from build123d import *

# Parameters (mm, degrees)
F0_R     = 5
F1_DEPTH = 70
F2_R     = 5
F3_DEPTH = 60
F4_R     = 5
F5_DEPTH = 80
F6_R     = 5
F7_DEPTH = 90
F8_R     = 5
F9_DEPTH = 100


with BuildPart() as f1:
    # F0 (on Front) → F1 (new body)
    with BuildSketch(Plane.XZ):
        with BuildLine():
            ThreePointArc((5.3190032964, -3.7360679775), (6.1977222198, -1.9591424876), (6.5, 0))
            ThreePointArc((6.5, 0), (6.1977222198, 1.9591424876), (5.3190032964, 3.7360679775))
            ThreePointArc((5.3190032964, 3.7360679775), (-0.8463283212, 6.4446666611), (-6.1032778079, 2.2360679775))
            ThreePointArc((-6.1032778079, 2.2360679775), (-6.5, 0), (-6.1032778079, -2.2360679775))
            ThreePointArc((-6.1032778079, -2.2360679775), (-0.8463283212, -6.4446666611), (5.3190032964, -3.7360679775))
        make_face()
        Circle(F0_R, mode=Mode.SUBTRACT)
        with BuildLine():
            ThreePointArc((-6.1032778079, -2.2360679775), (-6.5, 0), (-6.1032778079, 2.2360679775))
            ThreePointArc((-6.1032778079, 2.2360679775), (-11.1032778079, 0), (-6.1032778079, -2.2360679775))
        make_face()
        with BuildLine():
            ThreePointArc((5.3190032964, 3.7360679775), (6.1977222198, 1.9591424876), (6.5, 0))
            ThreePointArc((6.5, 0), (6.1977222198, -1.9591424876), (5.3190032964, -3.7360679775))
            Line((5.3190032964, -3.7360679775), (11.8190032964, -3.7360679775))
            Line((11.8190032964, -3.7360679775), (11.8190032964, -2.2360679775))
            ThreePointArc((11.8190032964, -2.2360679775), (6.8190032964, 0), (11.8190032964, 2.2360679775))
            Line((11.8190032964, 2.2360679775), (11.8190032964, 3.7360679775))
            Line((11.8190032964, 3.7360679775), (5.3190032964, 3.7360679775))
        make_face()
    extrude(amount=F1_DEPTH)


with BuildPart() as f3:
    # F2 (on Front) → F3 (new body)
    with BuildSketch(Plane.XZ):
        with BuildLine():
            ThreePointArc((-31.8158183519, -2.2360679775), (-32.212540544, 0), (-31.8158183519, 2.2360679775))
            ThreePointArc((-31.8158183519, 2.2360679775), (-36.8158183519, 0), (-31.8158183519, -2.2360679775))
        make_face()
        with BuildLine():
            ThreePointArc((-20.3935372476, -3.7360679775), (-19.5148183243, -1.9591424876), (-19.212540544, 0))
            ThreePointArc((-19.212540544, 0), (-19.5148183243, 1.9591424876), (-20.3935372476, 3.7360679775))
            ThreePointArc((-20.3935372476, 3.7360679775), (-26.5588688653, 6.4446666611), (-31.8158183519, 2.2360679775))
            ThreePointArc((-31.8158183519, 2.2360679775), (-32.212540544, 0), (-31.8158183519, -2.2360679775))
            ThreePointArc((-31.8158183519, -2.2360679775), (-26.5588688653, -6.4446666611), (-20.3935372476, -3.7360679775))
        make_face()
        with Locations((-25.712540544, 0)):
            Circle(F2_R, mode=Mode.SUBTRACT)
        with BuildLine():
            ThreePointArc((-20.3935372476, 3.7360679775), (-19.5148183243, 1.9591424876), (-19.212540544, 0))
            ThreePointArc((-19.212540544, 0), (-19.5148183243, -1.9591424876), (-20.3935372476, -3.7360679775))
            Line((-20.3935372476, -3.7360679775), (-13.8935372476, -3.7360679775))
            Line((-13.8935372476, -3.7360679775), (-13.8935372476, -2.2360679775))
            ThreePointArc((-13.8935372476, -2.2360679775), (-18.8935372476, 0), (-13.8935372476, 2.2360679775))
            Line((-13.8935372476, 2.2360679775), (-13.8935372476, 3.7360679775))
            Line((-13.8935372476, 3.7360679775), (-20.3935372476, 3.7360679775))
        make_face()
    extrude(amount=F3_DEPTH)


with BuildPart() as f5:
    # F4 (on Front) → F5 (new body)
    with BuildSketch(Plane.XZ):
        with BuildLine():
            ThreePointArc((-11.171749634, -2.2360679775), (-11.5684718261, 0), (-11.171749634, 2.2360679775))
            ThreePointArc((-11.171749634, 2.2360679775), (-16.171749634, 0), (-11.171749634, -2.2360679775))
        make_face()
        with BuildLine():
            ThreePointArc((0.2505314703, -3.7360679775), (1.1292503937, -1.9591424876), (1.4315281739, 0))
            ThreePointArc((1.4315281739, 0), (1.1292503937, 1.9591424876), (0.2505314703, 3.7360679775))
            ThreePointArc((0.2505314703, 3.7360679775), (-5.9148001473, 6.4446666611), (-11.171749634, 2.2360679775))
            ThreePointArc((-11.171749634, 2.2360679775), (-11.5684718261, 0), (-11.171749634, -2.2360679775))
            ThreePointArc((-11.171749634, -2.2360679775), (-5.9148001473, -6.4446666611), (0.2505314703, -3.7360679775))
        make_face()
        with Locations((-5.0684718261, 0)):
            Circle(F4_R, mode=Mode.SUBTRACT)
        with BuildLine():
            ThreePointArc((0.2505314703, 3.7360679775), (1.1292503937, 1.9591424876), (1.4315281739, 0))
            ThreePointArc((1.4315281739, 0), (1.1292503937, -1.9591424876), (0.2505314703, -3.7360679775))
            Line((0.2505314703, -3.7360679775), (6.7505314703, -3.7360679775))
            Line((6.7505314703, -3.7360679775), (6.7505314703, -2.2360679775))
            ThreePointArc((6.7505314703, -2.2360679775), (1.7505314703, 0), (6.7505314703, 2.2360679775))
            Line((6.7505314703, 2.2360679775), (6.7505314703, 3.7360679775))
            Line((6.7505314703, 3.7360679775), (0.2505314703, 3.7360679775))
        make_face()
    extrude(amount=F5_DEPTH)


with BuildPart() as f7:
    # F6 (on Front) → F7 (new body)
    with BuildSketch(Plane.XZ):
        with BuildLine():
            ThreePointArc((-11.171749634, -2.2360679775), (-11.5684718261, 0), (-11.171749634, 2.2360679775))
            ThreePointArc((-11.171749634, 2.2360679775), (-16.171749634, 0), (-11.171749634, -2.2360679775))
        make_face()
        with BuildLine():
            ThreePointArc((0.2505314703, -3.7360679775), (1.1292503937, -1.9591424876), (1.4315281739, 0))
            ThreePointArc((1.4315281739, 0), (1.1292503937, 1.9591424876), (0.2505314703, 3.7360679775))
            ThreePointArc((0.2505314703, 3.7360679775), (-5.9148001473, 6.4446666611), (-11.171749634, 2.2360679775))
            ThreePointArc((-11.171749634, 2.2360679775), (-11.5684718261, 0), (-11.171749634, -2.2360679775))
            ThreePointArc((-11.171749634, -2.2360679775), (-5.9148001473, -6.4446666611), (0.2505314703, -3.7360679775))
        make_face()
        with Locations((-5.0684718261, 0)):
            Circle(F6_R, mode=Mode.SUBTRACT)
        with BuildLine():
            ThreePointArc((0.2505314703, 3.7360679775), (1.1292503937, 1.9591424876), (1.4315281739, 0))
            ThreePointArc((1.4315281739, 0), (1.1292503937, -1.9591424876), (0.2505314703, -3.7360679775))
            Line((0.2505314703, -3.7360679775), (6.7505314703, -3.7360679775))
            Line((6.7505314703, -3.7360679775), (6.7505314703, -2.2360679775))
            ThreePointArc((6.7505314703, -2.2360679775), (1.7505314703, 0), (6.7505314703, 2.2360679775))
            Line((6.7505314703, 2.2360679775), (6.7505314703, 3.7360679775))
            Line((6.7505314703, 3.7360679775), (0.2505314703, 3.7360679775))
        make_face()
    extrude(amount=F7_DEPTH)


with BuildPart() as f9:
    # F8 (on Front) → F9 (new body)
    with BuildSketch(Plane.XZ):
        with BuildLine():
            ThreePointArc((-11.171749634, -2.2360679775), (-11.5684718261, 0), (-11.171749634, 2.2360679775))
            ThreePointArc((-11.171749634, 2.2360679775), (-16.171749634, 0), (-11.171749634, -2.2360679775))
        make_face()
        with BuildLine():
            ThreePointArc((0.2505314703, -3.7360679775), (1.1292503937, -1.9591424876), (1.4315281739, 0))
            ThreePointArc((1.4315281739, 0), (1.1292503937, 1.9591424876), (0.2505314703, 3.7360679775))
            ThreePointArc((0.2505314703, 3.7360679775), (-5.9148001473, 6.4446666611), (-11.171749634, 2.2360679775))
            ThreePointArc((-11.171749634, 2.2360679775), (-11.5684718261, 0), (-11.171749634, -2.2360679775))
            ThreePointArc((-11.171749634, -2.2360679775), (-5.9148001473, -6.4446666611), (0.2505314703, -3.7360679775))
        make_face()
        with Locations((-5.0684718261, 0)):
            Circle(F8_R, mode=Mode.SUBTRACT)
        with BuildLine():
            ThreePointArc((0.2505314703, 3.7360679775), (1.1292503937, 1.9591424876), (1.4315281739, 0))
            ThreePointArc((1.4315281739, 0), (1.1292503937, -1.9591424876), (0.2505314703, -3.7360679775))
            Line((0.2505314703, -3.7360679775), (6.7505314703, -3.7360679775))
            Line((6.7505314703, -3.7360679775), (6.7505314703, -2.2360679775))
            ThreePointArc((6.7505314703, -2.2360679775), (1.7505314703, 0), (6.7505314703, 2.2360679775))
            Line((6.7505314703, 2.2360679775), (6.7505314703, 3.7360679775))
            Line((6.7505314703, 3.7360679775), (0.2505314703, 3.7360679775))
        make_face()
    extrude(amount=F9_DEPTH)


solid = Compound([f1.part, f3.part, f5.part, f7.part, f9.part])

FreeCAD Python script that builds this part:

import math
import FreeCAD as App
import Part
import Sketcher
from FreeCAD import Vector
Q = App.Units.Quantity

doc = App.newDocument("Part")
params = doc.addObject("Spreadsheet::Sheet", "Params")
for row, (alias, value) in enumerate([
    ("sketch1_diameter", "10 mm"),
    ("sketch1_radius", "3 mm"),
    ("sketch1_radius2", "6.5 mm"),
    ("sketch1_width", "6.5 mm"),
    ("sketch1_height", "1.5 mm"),
    ("pad1_length", "70 mm"),
    ("sketch2_diameter", "10 mm"),
    ("sketch2_radius", "3 mm"),
    ("sketch2_radius2", "6.5 mm"),
    ("sketch2_width", "6.5 mm"),
    ("sketch2_height", "1.5 mm"),
    ("pad2_length", "60 mm"),
    ("sketch3_diameter", "10 mm"),
    ("sketch3_radius", "3 mm"),
    ("sketch3_radius2", "6.5 mm"),
    ("sketch3_width", "6.5 mm"),
    ("sketch3_height", "1.5 mm"),
    ("pad3_length", "80 mm"),
    ("sketch4_diameter", "10 mm"),
    ("sketch4_radius", "3 mm"),
    ("sketch4_radius2", "6.5 mm"),
    ("sketch4_width", "6.5 mm"),
    ("sketch4_height", "1.5 mm"),
    ("pad4_length", "90 mm"),
    ("sketch5_diameter", "10 mm"),
    ("sketch5_radius", "3 mm"),
    ("sketch5_radius2", "6.5 mm"),
    ("sketch5_width", "6.5 mm"),
    ("sketch5_height", "1.5 mm"),
    ("pad5_length", "100 mm"),
], start=1):
    params.set(f"A{row}", alias)
    params.set(f"B{row}", "=" + value)
    params.setAlias(f"B{row}", alias)

body = doc.addObject("PartDesign::Body", "Body")

sketch1 = body.newObject("Sketcher::SketchObject", "Sketch")
sketch1.AttachmentSupport = (doc.getObject("XZ_Plane"), [""])
sketch1.MapMode = "FlatFace"
sketch1.addGeometry(Part.ArcOfCircle(Part.Circle(Vector(0, 0, 0), Vector(0, 0, 1), 6.5), math.radians(35), math.radians(160)), False)
sketch1.addGeometry(Part.ArcOfCircle(Part.Circle(Vector(-8.1, 0, 0), Vector(0, 0, 1), 3), math.radians(48), math.radians(312)), False)
sketch1.addGeometry(Part.ArcOfCircle(Part.Circle(Vector(0, 0, 0), Vector(0, 0, 1), 6.5), math.radians(-160), math.radians(-35)), False)
sketch1.addGeometry(Part.LineSegment(Vector(5.3, -3.7, 0), Vector(11.8, -3.7, 0)), False)
sketch1.addGeometry(Part.LineSegment(Vector(11.8, -3.7, 0), Vector(11.8, -2.2, 0)), False)
sketch1.addGeometry(Part.ArcOfCircle(Part.Circle(Vector(9.8, 0, 0), Vector(0, 0, 1), 3), math.radians(48), math.radians(312)), False)
sketch1.addGeometry(Part.LineSegment(Vector(11.8, 2.2, 0), Vector(11.8, 3.7, 0)), False)
sketch1.addGeometry(Part.LineSegment(Vector(11.8, 3.7, 0), Vector(5.3, 3.7, 0)), False)
sketch1.addGeometry(Part.Circle(Vector(0, 0, 0), Vector(0, 0, 1), 5), False)
sketch1.addConstraint(Sketcher.Constraint("Coincident", 0, 2, 1, 1))
sketch1.addConstraint(Sketcher.Constraint("Coincident", 1, 2, 2, 1))
sketch1.addConstraint(Sketcher.Constraint("Coincident", 2, 2, 3, 1))
sketch1.addConstraint(Sketcher.Constraint("Coincident", 3, 2, 4, 1))
sketch1.addConstraint(Sketcher.Constraint("Coincident", 4, 2, 5, 2))
sketch1.addConstraint(Sketcher.Constraint("Coincident", 5, 1, 6, 1))
sketch1.addConstraint(Sketcher.Constraint("Coincident", 6, 2, 7, 1))
sketch1.addConstraint(Sketcher.Constraint("Coincident", 7, 2, 0, 1))
sketch1.addConstraint(Sketcher.Constraint("Horizontal", 3))
sketch1.addConstraint(Sketcher.Constraint("Vertical", 4))
sketch1.addConstraint(Sketcher.Constraint("Vertical", 6))
sketch1.addConstraint(Sketcher.Constraint("Horizontal", 7))
sketch1.addConstraint(Sketcher.Constraint("Coincident", 0, 3, -1, 1))
sketch1.addConstraint(Sketcher.Constraint("Coincident", 2, 3, -1, 1))
sketch1.addConstraint(Sketcher.Constraint("Coincident", 8, 3, -1, 1))
sketch1.addConstraint(Sketcher.Constraint("Equal", 0, 2))
sketch1.addConstraint(Sketcher.Constraint("Equal", 1, 5))
sketch1.addConstraint(Sketcher.Constraint("Symmetric", 4, 2, 5, 1, -1))
sketch1.addConstraint(Sketcher.Constraint("PointOnObject", 1, 3, -1))
sketch1.addConstraint(Sketcher.Constraint("Horizontal", 1, 2, 4, 2))
sketch1.addConstraint(Sketcher.Constraint("Vertical", 2, 2, 7, 2))
sketch1.addConstraint(Sketcher.Constraint("Diameter", 8, Q("10 mm")))
sketch1.addConstraint(Sketcher.Constraint("Radius", 1, Q("3 mm")))
sketch1.addConstraint(Sketcher.Constraint("Radius", 0, Q("6.5 mm")))
sketch1.addConstraint(Sketcher.Constraint("DistanceX", 3, 1, 3, 2, Q("6.5 mm")))
sketch1.addConstraint(Sketcher.Constraint("DistanceY", 4, 1, 4, 2, Q("1.5 mm")))
sketch1.addConstraint(Sketcher.Constraint("DistanceX", 1, 3, 0, 2, Q("2 mm")))
sketch1.setExpression("Constraints[21]", "Params.sketch1_diameter")
sketch1.setExpression("Constraints[22]", "Params.sketch1_radius")
sketch1.setExpression("Constraints[23]", "Params.sketch1_radius2")
sketch1.setExpression("Constraints[24]", "Params.sketch1_width")
sketch1.setExpression("Constraints[25]", "Params.sketch1_height")
pad1 = body.newObject("PartDesign::Pad", "Pad")
pad1.Profile = sketch1
pad1.setExpression("Length", "Params.pad1_length")
body2 = doc.addObject("PartDesign::Body", "Body001")

sketch2 = body2.newObject("Sketcher::SketchObject", "Sketch001")
sketch2.AttachmentSupport = (doc.getObject("XZ_Plane001"), [""])
sketch2.MapMode = "FlatFace"
sketch2.addGeometry(Part.ArcOfCircle(Part.Circle(Vector(-33.8, 0, 0), Vector(0, 0, 1), 3), math.radians(48), math.radians(312)), False)
sketch2.addGeometry(Part.ArcOfCircle(Part.Circle(Vector(-25.7, 0, 0), Vector(0, 0, 1), 6.5), math.radians(-160), math.radians(-35)), False)
sketch2.addGeometry(Part.LineSegment(Vector(-20.4, -3.7, 0), Vector(-13.9, -3.7, 0)), False)
sketch2.addGeometry(Part.LineSegment(Vector(-13.9, -3.7, 0), Vector(-13.9, -2.2, 0)), False)
sketch2.addGeometry(Part.ArcOfCircle(Part.Circle(Vector(-15.9, 0, 0), Vector(0, 0, 1), 3), math.radians(48), math.radians(312)), False)
sketch2.addGeometry(Part.LineSegment(Vector(-13.9, 2.2, 0), Vector(-13.9, 3.7, 0)), False)
sketch2.addGeometry(Part.LineSegment(Vector(-13.9, 3.7, 0), Vector(-20.4, 3.7, 0)), False)
sketch2.addGeometry(Part.ArcOfCircle(Part.Circle(Vector(-25.7, 0, 0), Vector(0, 0, 1), 6.5), math.radians(35), math.radians(160)), False)
sketch2.addGeometry(Part.Circle(Vector(-25.7, 0, 0), Vector(0, 0, 1), 5), False)
sketch2.addConstraint(Sketcher.Constraint("Coincident", 0, 2, 1, 1))
sketch2.addConstraint(Sketcher.Constraint("Coincident", 1, 2, 2, 1))
sketch2.addConstraint(Sketcher.Constraint("Coincident", 2, 2, 3, 1))
sketch2.addConstraint(Sketcher.Constraint("Coincident", 3, 2, 4, 2))
sketch2.addConstraint(Sketcher.Constraint("Coincident", 4, 1, 5, 1))
sketch2.addConstraint(Sketcher.Constraint("Coincident", 5, 2, 6, 1))
sketch2.addConstraint(Sketcher.Constraint("Coincident", 6, 2, 7, 1))
sketch2.addConstraint(Sketcher.Constraint("Coincident", 7, 2, 0, 1))
sketch2.addConstraint(Sketcher.Constraint("Horizontal", 2))
sketch2.addConstraint(Sketcher.Constraint("Vertical", 3))
sketch2.addConstraint(Sketcher.Constraint("Vertical", 5))
sketch2.addConstraint(Sketcher.Constraint("Horizontal", 6))
sketch2.addConstraint(Sketcher.Constraint("Coincident", 7, 3, 1, 3))
sketch2.addConstraint(Sketcher.Constraint("Coincident", 8, 3, 1, 3))
sketch2.addConstraint(Sketcher.Constraint("Equal", 0, 4))
sketch2.addConstraint(Sketcher.Constraint("Equal", 1, 7))
sketch2.addConstraint(Sketcher.Constraint("Symmetric", 3, 2, 4, 1, -1))
sketch2.addConstraint(Sketcher.Constraint("Symmetric", 1, 2, 6, 2, -1))
sketch2.addConstraint(Sketcher.Constraint("PointOnObject", 0, 3, -1))
sketch2.addConstraint(Sketcher.Constraint("Horizontal", 0, 2, 3, 2))
sketch2.addConstraint(Sketcher.Constraint("Diameter", 8, Q("10 mm")))
sketch2.addConstraint(Sketcher.Constraint("Radius", 0, Q("3 mm")))
sketch2.addConstraint(Sketcher.Constraint("Radius", 1, Q("6.5 mm")))
sketch2.addConstraint(Sketcher.Constraint("DistanceX", 2, 1, 2, 2, Q("6.5 mm")))
sketch2.addConstraint(Sketcher.Constraint("DistanceY", 3, 1, 3, 2, Q("1.5 mm")))
sketch2.addConstraint(Sketcher.Constraint("DistanceX", 0, 3, 0, 2, Q("2 mm")))
sketch2.addConstraint(Sketcher.Constraint("DistanceX", 0, 3, -1, 1, Q("33.815818 mm")))
sketch2.setExpression("Constraints[20]", "Params.sketch2_diameter")
sketch2.setExpression("Constraints[21]", "Params.sketch2_radius")
sketch2.setExpression("Constraints[22]", "Params.sketch2_radius2")
sketch2.setExpression("Constraints[23]", "Params.sketch2_width")
sketch2.setExpression("Constraints[24]", "Params.sketch2_height")
pad2 = body2.newObject("PartDesign::Pad", "Pad001")
pad2.Profile = sketch2
pad2.setExpression("Length", "Params.pad2_length")
body3 = doc.addObject("PartDesign::Body", "Body002")

sketch3 = body3.newObject("Sketcher::SketchObject", "Sketch002")
sketch3.AttachmentSupport = (doc.getObject("XZ_Plane002"), [""])
sketch3.MapMode = "FlatFace"
sketch3.addGeometry(Part.ArcOfCircle(Part.Circle(Vector(-13.2, 0, 0), Vector(0, 0, 1), 3), math.radians(48), math.radians(312)), False)
sketch3.addGeometry(Part.ArcOfCircle(Part.Circle(Vector(-5.1, 0, 0), Vector(0, 0, 1), 6.5), math.radians(-160), math.radians(-35)), False)
sketch3.addGeometry(Part.LineSegment(Vector(0.3, -3.7, 0), Vector(6.8, -3.7, 0)), False)
sketch3.addGeometry(Part.LineSegment(Vector(6.8, -3.7, 0), Vector(6.8, -2.2, 0)), False)
sketch3.addGeometry(Part.ArcOfCircle(Part.Circle(Vector(4.8, 0, 0), Vector(0, 0, 1), 3), math.radians(48), math.radians(312)), False)
sketch3.addGeometry(Part.LineSegment(Vector(6.8, 2.2, 0), Vector(6.8, 3.7, 0)), False)
sketch3.addGeometry(Part.LineSegment(Vector(6.8, 3.7, 0), Vector(0.3, 3.7, 0)), False)
sketch3.addGeometry(Part.ArcOfCircle(Part.Circle(Vector(-5.1, 0, 0), Vector(0, 0, 1), 6.5), math.radians(35), math.radians(160)), False)
sketch3.addGeometry(Part.Circle(Vector(-5.1, 0, 0), Vector(0, 0, 1), 5), False)
sketch3.addConstraint(Sketcher.Constraint("Coincident", 0, 2, 1, 1))
sketch3.addConstraint(Sketcher.Constraint("Coincident", 1, 2, 2, 1))
sketch3.addConstraint(Sketcher.Constraint("Coincident", 2, 2, 3, 1))
sketch3.addConstraint(Sketcher.Constraint("Coincident", 3, 2, 4, 2))
sketch3.addConstraint(Sketcher.Constraint("Coincident", 4, 1, 5, 1))
sketch3.addConstraint(Sketcher.Constraint("Coincident", 5, 2, 6, 1))
sketch3.addConstraint(Sketcher.Constraint("Coincident", 6, 2, 7, 1))
sketch3.addConstraint(Sketcher.Constraint("Coincident", 7, 2, 0, 1))
sketch3.addConstraint(Sketcher.Constraint("Horizontal", 2))
sketch3.addConstraint(Sketcher.Constraint("Vertical", 3))
sketch3.addConstraint(Sketcher.Constraint("Vertical", 5))
sketch3.addConstraint(Sketcher.Constraint("Horizontal", 6))
sketch3.addConstraint(Sketcher.Constraint("Coincident", 7, 3, 1, 3))
sketch3.addConstraint(Sketcher.Constraint("Coincident", 8, 3, 1, 3))
sketch3.addConstraint(Sketcher.Constraint("Equal", 0, 4))
sketch3.addConstraint(Sketcher.Constraint("Equal", 1, 7))
sketch3.addConstraint(Sketcher.Constraint("Symmetric", 3, 2, 4, 1, -1))
sketch3.addConstraint(Sketcher.Constraint("Symmetric", 1, 2, 6, 2, -1))
sketch3.addConstraint(Sketcher.Constraint("PointOnObject", 0, 3, -1))
sketch3.addConstraint(Sketcher.Constraint("Horizontal", 0, 2, 3, 2))
sketch3.addConstraint(Sketcher.Constraint("Diameter", 8, Q("10 mm")))
sketch3.addConstraint(Sketcher.Constraint("Radius", 0, Q("3 mm")))
sketch3.addConstraint(Sketcher.Constraint("Radius", 1, Q("6.5 mm")))
sketch3.addConstraint(Sketcher.Constraint("DistanceX", 2, 1, 2, 2, Q("6.5 mm")))
sketch3.addConstraint(Sketcher.Constraint("DistanceY", 3, 1, 3, 2, Q("1.5 mm")))
sketch3.addConstraint(Sketcher.Constraint("DistanceX", 0, 3, 0, 2, Q("2 mm")))
sketch3.addConstraint(Sketcher.Constraint("DistanceX", 0, 3, -1, 1, Q("13.17175 mm")))
sketch3.setExpression("Constraints[20]", "Params.sketch3_diameter")
sketch3.setExpression("Constraints[21]", "Params.sketch3_radius")
sketch3.setExpression("Constraints[22]", "Params.sketch3_radius2")
sketch3.setExpression("Constraints[23]", "Params.sketch3_width")
sketch3.setExpression("Constraints[24]", "Params.sketch3_height")
pad3 = body3.newObject("PartDesign::Pad", "Pad002")
pad3.Profile = sketch3
pad3.setExpression("Length", "Params.pad3_length")
body4 = doc.addObject("PartDesign::Body", "Body003")

sketch4 = body4.newObject("Sketcher::SketchObject", "Sketch003")
sketch4.AttachmentSupport = (doc.getObject("XZ_Plane003"), [""])
sketch4.MapMode = "FlatFace"
sketch4.addGeometry(Part.ArcOfCircle(Part.Circle(Vector(-13.2, 0, 0), Vector(0, 0, 1), 3), math.radians(48), math.radians(312)), False)
sketch4.addGeometry(Part.ArcOfCircle(Part.Circle(Vector(-5.1, 0, 0), Vector(0, 0, 1), 6.5), math.radians(-160), math.radians(-35)), False)
sketch4.addGeometry(Part.LineSegment(Vector(0.3, -3.7, 0), Vector(6.8, -3.7, 0)), False)
sketch4.addGeometry(Part.LineSegment(Vector(6.8, -3.7, 0), Vector(6.8, -2.2, 0)), False)
sketch4.addGeometry(Part.ArcOfCircle(Part.Circle(Vector(4.8, 0, 0), Vector(0, 0, 1), 3), math.radians(48), math.radians(312)), False)
sketch4.addGeometry(Part.LineSegment(Vector(6.8, 2.2, 0), Vector(6.8, 3.7, 0)), False)
sketch4.addGeometry(Part.LineSegment(Vector(6.8, 3.7, 0), Vector(0.3, 3.7, 0)), False)
sketch4.addGeometry(Part.ArcOfCircle(Part.Circle(Vector(-5.1, 0, 0), Vector(0, 0, 1), 6.5), math.radians(35), math.radians(160)), False)
sketch4.addGeometry(Part.Circle(Vector(-5.1, 0, 0), Vector(0, 0, 1), 5), False)
sketch4.addConstraint(Sketcher.Constraint("Coincident", 0, 2, 1, 1))
sketch4.addConstraint(Sketcher.Constraint("Coincident", 1, 2, 2, 1))
sketch4.addConstraint(Sketcher.Constraint("Coincident", 2, 2, 3, 1))
sketch4.addConstraint(Sketcher.Constraint("Coincident", 3, 2, 4, 2))
sketch4.addConstraint(Sketcher.Constraint("Coincident", 4, 1, 5, 1))
sketch4.addConstraint(Sketcher.Constraint("Coincident", 5, 2, 6, 1))
sketch4.addConstraint(Sketcher.Constraint("Coincident", 6, 2, 7, 1))
sketch4.addConstraint(Sketcher.Constraint("Coincident", 7, 2, 0, 1))
sketch4.addConstraint(Sketcher.Constraint("Horizontal", 2))
sketch4.addConstraint(Sketcher.Constraint("Vertical", 3))
sketch4.addConstraint(Sketcher.Constraint("Vertical", 5))
sketch4.addConstraint(Sketcher.Constraint("Horizontal", 6))
sketch4.addConstraint(Sketcher.Constraint("Coincident", 7, 3, 1, 3))
sketch4.addConstraint(Sketcher.Constraint("Coincident", 8, 3, 1, 3))
sketch4.addConstraint(Sketcher.Constraint("Equal", 0, 4))
sketch4.addConstraint(Sketcher.Constraint("Equal", 1, 7))
sketch4.addConstraint(Sketcher.Constraint("Symmetric", 3, 2, 4, 1, -1))
sketch4.addConstraint(Sketcher.Constraint("Symmetric", 1, 2, 6, 2, -1))
sketch4.addConstraint(Sketcher.Constraint("PointOnObject", 0, 3, -1))
sketch4.addConstraint(Sketcher.Constraint("Horizontal", 0, 2, 3, 2))
sketch4.addConstraint(Sketcher.Constraint("Diameter", 8, Q("10 mm")))
sketch4.addConstraint(Sketcher.Constraint("Radius", 0, Q("3 mm")))
sketch4.addConstraint(Sketcher.Constraint("Radius", 1, Q("6.5 mm")))
sketch4.addConstraint(Sketcher.Constraint("DistanceX", 2, 1, 2, 2, Q("6.5 mm")))
sketch4.addConstraint(Sketcher.Constraint("DistanceY", 3, 1, 3, 2, Q("1.5 mm")))
sketch4.addConstraint(Sketcher.Constraint("DistanceX", 0, 3, 0, 2, Q("2 mm")))
sketch4.addConstraint(Sketcher.Constraint("DistanceX", 0, 3, -1, 1, Q("13.17175 mm")))
sketch4.setExpression("Constraints[20]", "Params.sketch4_diameter")
sketch4.setExpression("Constraints[21]", "Params.sketch4_radius")
sketch4.setExpression("Constraints[22]", "Params.sketch4_radius2")
sketch4.setExpression("Constraints[23]", "Params.sketch4_width")
sketch4.setExpression("Constraints[24]", "Params.sketch4_height")
pad4 = body4.newObject("PartDesign::Pad", "Pad003")
pad4.Profile = sketch4
pad4.setExpression("Length", "Params.pad4_length")
body5 = doc.addObject("PartDesign::Body", "Body004")

sketch5 = body5.newObject("Sketcher::SketchObject", "Sketch004")
sketch5.AttachmentSupport = (doc.getObject("XZ_Plane004"), [""])
sketch5.MapMode = "FlatFace"
sketch5.addGeometry(Part.ArcOfCircle(Part.Circle(Vector(-13.2, 0, 0), Vector(0, 0, 1), 3), math.radians(48), math.radians(312)), False)
sketch5.addGeometry(Part.ArcOfCircle(Part.Circle(Vector(-5.1, 0, 0), Vector(0, 0, 1), 6.5), math.radians(-160), math.radians(-35)), False)
sketch5.addGeometry(Part.LineSegment(Vector(0.3, -3.7, 0), Vector(6.8, -3.7, 0)), False)
sketch5.addGeometry(Part.LineSegment(Vector(6.8, -3.7, 0), Vector(6.8, -2.2, 0)), False)
sketch5.addGeometry(Part.ArcOfCircle(Part.Circle(Vector(4.8, 0, 0), Vector(0, 0, 1), 3), math.radians(48), math.radians(312)), False)
sketch5.addGeometry(Part.LineSegment(Vector(6.8, 2.2, 0), Vector(6.8, 3.7, 0)), False)
sketch5.addGeometry(Part.LineSegment(Vector(6.8, 3.7, 0), Vector(0.3, 3.7, 0)), False)
sketch5.addGeometry(Part.ArcOfCircle(Part.Circle(Vector(-5.1, 0, 0), Vector(0, 0, 1), 6.5), math.radians(35), math.radians(160)), False)
sketch5.addGeometry(Part.Circle(Vector(-5.1, 0, 0), Vector(0, 0, 1), 5), False)
sketch5.addConstraint(Sketcher.Constraint("Coincident", 0, 2, 1, 1))
sketch5.addConstraint(Sketcher.Constraint("Coincident", 1, 2, 2, 1))
sketch5.addConstraint(Sketcher.Constraint("Coincident", 2, 2, 3, 1))
sketch5.addConstraint(Sketcher.Constraint("Coincident", 3, 2, 4, 2))
sketch5.addConstraint(Sketcher.Constraint("Coincident", 4, 1, 5, 1))
sketch5.addConstraint(Sketcher.Constraint("Coincident", 5, 2, 6, 1))
sketch5.addConstraint(Sketcher.Constraint("Coincident", 6, 2, 7, 1))
sketch5.addConstraint(Sketcher.Constraint("Coincident", 7, 2, 0, 1))
sketch5.addConstraint(Sketcher.Constraint("Horizontal", 2))
sketch5.addConstraint(Sketcher.Constraint("Vertical", 3))
sketch5.addConstraint(Sketcher.Constraint("Vertical", 5))
sketch5.addConstraint(Sketcher.Constraint("Horizontal", 6))
sketch5.addConstraint(Sketcher.Constraint("Coincident", 7, 3, 1, 3))
sketch5.addConstraint(Sketcher.Constraint("Coincident", 8, 3, 1, 3))
sketch5.addConstraint(Sketcher.Constraint("Equal", 0, 4))
sketch5.addConstraint(Sketcher.Constraint("Equal", 1, 7))
sketch5.addConstraint(Sketcher.Constraint("Symmetric", 3, 2, 4, 1, -1))
sketch5.addConstraint(Sketcher.Constraint("Symmetric", 1, 2, 6, 2, -1))
sketch5.addConstraint(Sketcher.Constraint("PointOnObject", 0, 3, -1))
sketch5.addConstraint(Sketcher.Constraint("Horizontal", 0, 2, 3, 2))
sketch5.addConstraint(Sketcher.Constraint("Diameter", 8, Q("10 mm")))
sketch5.addConstraint(Sketcher.Constraint("Radius", 0, Q("3 mm")))
sketch5.addConstraint(Sketcher.Constraint("Radius", 1, Q("6.5 mm")))
sketch5.addConstraint(Sketcher.Constraint("DistanceX", 2, 1, 2, 2, Q("6.5 mm")))
sketch5.addConstraint(Sketcher.Constraint("DistanceY", 3, 1, 3, 2, Q("1.5 mm")))
sketch5.addConstraint(Sketcher.Constraint("DistanceX", 0, 3, 0, 2, Q("2 mm")))
sketch5.addConstraint(Sketcher.Constraint("DistanceX", 0, 3, -1, 1, Q("13.17175 mm")))
sketch5.setExpression("Constraints[20]", "Params.sketch5_diameter")
sketch5.setExpression("Constraints[21]", "Params.sketch5_radius")
sketch5.setExpression("Constraints[22]", "Params.sketch5_radius2")
sketch5.setExpression("Constraints[23]", "Params.sketch5_width")
sketch5.setExpression("Constraints[24]", "Params.sketch5_height")
pad5 = body5.newObject("PartDesign::Pad", "Pad004")
pad5.Profile = sketch5
pad5.setExpression("Length", "Params.pad5_length")

doc.recompute()
